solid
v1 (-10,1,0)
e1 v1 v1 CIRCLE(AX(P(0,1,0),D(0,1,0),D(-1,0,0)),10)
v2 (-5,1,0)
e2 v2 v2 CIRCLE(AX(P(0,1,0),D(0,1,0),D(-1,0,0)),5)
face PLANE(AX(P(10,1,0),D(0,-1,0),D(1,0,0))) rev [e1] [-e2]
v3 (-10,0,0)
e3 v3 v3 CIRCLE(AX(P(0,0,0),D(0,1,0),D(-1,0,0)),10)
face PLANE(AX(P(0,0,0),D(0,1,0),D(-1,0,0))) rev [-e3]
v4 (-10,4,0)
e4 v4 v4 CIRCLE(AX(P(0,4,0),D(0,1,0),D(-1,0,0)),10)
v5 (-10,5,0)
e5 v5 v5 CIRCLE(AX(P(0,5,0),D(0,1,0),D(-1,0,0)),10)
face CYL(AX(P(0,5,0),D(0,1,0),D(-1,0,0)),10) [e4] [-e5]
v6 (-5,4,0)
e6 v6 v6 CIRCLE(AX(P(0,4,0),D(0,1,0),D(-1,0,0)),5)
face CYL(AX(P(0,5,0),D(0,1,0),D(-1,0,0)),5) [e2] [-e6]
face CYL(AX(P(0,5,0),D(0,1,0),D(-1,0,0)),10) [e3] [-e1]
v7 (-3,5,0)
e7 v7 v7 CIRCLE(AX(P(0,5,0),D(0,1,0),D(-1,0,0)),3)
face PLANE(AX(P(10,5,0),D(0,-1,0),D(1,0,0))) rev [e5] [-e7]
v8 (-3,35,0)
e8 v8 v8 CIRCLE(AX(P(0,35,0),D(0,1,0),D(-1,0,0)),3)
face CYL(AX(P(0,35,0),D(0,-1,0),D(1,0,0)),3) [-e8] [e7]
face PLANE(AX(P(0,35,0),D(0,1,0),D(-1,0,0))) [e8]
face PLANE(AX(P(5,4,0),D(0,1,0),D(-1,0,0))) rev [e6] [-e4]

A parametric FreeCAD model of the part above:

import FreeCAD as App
import Part
import Sketcher
Q = App.Units.Quantity

doc = App.newDocument("Part")
body = doc.addObject("PartDesign::Body", "Body")

# Sketch on XY plane
sketch1 = doc.addObject("Sketcher::SketchObject", "Sketch")
body.addObject(sketch1)
sketch1.AttachmentSupport = (doc.XY_Plane, [""])
sketch1.MapMode = "FlatFace"
sketch1.addGeometry([
    Part.LineSegment(App.Vector(0, 0, 0), App.Vector(10, 0, 0)),  # 0
    Part.LineSegment(App.Vector(10, 0, 0), App.Vector(10, 1, 0)),  # 1
    Part.LineSegment(App.Vector(10, 1, 0), App.Vector(5, 1, 0)),  # 2
    Part.LineSegment(App.Vector(5, 1, 0), App.Vector(5, 4, 0)),  # 3
    Part.LineSegment(App.Vector(5, 4, 0), App.Vector(10, 4, 0)),  # 4
    Part.LineSegment(App.Vector(10, 4, 0), App.Vector(10, 5, 0)),  # 5
    Part.LineSegment(App.Vector(10, 5, 0), App.Vector(0, 5, 0)),  # 6
    Part.LineSegment(App.Vector(0, 5, 0), App.Vector(0, 0, 0)),  # 7
], False)
sketch1.addConstraint([
    Sketcher.Constraint("Coincident", 0, 2, 1, 1),
    Sketcher.Constraint("Coincident", 1, 2, 2, 1),
    Sketcher.Constraint("Coincident", 2, 2, 3, 1),
    Sketcher.Constraint("Coincident", 3, 2, 4, 1),
    Sketcher.Constraint("Coincident", 4, 2, 5, 1),
    Sketcher.Constraint("Coincident", 5, 2, 6, 1),
    Sketcher.Constraint("Coincident", 6, 2, 7, 1),
    Sketcher.Constraint("Coincident", 7, 2, 0, 1),
    Sketcher.Constraint("Horizontal", 0),
    Sketcher.Constraint("Vertical", 1),
    Sketcher.Constraint("Horizontal", 2),
    Sketcher.Constraint("Vertical", 3),
    Sketcher.Constraint("Horizontal", 4),
    Sketcher.Constraint("Vertical", 5),
    Sketcher.Constraint("Horizontal", 6),
    Sketcher.Constraint("Vertical", 7),
    Sketcher.Constraint("Coincident", 7, 2, -1, 1),
    Sketcher.Constraint("Vertical", 1, 2, 4, 2),
    Sketcher.Constraint("Equal", 1, 5),
    Sketcher.Constraint("Equal", 4, 7),
    Sketcher.Constraint("DistanceX", 0, 1, 0, 2, Q("10 mm")),
    Sketcher.Constraint("DistanceX", 2, 2, 2, 1, Q("5 mm")),
    Sketcher.Constraint("DistanceY", 1, 1, 1, 2, Q("1 mm")),
])
revolution = doc.addObject("PartDesign::Revolution", "Revolution")
body.addObject(revolution)
revolution.Profile = sketch1
revolution.ReferenceAxis = (sketch1, ["V_Axis"])
revolution.Angle = 360

# Sketch on XZ plane
sketch2 = doc.addObject("Sketcher::SketchObject", "Sketch001")
body.addObject(sketch2)
sketch2.AttachmentSupport = (doc.XZ_Plane, [""])
sketch2.MapMode = "FlatFace"
sketch2.AttachmentOffset = App.Placement(App.Vector(0, 0, -5), App.Rotation())
sketch2.addGeometry(Part.Circle(App.Vector(0, 0, 0), App.Vector(0, 0, 1), 3), False)
sketch2.addConstraint([
    Sketcher.Constraint("Coincident", 0, 3, -1, 1),
    Sketcher.Constraint("Diameter", 0, Q("6 mm")),
])
pad1 = doc.addObject("PartDesign::Pad", "Pad")
body.addObject(pad1)
pad1.Profile = sketch2
pad1.Length = 30
pad1.Reversed = True

doc.recompute()
